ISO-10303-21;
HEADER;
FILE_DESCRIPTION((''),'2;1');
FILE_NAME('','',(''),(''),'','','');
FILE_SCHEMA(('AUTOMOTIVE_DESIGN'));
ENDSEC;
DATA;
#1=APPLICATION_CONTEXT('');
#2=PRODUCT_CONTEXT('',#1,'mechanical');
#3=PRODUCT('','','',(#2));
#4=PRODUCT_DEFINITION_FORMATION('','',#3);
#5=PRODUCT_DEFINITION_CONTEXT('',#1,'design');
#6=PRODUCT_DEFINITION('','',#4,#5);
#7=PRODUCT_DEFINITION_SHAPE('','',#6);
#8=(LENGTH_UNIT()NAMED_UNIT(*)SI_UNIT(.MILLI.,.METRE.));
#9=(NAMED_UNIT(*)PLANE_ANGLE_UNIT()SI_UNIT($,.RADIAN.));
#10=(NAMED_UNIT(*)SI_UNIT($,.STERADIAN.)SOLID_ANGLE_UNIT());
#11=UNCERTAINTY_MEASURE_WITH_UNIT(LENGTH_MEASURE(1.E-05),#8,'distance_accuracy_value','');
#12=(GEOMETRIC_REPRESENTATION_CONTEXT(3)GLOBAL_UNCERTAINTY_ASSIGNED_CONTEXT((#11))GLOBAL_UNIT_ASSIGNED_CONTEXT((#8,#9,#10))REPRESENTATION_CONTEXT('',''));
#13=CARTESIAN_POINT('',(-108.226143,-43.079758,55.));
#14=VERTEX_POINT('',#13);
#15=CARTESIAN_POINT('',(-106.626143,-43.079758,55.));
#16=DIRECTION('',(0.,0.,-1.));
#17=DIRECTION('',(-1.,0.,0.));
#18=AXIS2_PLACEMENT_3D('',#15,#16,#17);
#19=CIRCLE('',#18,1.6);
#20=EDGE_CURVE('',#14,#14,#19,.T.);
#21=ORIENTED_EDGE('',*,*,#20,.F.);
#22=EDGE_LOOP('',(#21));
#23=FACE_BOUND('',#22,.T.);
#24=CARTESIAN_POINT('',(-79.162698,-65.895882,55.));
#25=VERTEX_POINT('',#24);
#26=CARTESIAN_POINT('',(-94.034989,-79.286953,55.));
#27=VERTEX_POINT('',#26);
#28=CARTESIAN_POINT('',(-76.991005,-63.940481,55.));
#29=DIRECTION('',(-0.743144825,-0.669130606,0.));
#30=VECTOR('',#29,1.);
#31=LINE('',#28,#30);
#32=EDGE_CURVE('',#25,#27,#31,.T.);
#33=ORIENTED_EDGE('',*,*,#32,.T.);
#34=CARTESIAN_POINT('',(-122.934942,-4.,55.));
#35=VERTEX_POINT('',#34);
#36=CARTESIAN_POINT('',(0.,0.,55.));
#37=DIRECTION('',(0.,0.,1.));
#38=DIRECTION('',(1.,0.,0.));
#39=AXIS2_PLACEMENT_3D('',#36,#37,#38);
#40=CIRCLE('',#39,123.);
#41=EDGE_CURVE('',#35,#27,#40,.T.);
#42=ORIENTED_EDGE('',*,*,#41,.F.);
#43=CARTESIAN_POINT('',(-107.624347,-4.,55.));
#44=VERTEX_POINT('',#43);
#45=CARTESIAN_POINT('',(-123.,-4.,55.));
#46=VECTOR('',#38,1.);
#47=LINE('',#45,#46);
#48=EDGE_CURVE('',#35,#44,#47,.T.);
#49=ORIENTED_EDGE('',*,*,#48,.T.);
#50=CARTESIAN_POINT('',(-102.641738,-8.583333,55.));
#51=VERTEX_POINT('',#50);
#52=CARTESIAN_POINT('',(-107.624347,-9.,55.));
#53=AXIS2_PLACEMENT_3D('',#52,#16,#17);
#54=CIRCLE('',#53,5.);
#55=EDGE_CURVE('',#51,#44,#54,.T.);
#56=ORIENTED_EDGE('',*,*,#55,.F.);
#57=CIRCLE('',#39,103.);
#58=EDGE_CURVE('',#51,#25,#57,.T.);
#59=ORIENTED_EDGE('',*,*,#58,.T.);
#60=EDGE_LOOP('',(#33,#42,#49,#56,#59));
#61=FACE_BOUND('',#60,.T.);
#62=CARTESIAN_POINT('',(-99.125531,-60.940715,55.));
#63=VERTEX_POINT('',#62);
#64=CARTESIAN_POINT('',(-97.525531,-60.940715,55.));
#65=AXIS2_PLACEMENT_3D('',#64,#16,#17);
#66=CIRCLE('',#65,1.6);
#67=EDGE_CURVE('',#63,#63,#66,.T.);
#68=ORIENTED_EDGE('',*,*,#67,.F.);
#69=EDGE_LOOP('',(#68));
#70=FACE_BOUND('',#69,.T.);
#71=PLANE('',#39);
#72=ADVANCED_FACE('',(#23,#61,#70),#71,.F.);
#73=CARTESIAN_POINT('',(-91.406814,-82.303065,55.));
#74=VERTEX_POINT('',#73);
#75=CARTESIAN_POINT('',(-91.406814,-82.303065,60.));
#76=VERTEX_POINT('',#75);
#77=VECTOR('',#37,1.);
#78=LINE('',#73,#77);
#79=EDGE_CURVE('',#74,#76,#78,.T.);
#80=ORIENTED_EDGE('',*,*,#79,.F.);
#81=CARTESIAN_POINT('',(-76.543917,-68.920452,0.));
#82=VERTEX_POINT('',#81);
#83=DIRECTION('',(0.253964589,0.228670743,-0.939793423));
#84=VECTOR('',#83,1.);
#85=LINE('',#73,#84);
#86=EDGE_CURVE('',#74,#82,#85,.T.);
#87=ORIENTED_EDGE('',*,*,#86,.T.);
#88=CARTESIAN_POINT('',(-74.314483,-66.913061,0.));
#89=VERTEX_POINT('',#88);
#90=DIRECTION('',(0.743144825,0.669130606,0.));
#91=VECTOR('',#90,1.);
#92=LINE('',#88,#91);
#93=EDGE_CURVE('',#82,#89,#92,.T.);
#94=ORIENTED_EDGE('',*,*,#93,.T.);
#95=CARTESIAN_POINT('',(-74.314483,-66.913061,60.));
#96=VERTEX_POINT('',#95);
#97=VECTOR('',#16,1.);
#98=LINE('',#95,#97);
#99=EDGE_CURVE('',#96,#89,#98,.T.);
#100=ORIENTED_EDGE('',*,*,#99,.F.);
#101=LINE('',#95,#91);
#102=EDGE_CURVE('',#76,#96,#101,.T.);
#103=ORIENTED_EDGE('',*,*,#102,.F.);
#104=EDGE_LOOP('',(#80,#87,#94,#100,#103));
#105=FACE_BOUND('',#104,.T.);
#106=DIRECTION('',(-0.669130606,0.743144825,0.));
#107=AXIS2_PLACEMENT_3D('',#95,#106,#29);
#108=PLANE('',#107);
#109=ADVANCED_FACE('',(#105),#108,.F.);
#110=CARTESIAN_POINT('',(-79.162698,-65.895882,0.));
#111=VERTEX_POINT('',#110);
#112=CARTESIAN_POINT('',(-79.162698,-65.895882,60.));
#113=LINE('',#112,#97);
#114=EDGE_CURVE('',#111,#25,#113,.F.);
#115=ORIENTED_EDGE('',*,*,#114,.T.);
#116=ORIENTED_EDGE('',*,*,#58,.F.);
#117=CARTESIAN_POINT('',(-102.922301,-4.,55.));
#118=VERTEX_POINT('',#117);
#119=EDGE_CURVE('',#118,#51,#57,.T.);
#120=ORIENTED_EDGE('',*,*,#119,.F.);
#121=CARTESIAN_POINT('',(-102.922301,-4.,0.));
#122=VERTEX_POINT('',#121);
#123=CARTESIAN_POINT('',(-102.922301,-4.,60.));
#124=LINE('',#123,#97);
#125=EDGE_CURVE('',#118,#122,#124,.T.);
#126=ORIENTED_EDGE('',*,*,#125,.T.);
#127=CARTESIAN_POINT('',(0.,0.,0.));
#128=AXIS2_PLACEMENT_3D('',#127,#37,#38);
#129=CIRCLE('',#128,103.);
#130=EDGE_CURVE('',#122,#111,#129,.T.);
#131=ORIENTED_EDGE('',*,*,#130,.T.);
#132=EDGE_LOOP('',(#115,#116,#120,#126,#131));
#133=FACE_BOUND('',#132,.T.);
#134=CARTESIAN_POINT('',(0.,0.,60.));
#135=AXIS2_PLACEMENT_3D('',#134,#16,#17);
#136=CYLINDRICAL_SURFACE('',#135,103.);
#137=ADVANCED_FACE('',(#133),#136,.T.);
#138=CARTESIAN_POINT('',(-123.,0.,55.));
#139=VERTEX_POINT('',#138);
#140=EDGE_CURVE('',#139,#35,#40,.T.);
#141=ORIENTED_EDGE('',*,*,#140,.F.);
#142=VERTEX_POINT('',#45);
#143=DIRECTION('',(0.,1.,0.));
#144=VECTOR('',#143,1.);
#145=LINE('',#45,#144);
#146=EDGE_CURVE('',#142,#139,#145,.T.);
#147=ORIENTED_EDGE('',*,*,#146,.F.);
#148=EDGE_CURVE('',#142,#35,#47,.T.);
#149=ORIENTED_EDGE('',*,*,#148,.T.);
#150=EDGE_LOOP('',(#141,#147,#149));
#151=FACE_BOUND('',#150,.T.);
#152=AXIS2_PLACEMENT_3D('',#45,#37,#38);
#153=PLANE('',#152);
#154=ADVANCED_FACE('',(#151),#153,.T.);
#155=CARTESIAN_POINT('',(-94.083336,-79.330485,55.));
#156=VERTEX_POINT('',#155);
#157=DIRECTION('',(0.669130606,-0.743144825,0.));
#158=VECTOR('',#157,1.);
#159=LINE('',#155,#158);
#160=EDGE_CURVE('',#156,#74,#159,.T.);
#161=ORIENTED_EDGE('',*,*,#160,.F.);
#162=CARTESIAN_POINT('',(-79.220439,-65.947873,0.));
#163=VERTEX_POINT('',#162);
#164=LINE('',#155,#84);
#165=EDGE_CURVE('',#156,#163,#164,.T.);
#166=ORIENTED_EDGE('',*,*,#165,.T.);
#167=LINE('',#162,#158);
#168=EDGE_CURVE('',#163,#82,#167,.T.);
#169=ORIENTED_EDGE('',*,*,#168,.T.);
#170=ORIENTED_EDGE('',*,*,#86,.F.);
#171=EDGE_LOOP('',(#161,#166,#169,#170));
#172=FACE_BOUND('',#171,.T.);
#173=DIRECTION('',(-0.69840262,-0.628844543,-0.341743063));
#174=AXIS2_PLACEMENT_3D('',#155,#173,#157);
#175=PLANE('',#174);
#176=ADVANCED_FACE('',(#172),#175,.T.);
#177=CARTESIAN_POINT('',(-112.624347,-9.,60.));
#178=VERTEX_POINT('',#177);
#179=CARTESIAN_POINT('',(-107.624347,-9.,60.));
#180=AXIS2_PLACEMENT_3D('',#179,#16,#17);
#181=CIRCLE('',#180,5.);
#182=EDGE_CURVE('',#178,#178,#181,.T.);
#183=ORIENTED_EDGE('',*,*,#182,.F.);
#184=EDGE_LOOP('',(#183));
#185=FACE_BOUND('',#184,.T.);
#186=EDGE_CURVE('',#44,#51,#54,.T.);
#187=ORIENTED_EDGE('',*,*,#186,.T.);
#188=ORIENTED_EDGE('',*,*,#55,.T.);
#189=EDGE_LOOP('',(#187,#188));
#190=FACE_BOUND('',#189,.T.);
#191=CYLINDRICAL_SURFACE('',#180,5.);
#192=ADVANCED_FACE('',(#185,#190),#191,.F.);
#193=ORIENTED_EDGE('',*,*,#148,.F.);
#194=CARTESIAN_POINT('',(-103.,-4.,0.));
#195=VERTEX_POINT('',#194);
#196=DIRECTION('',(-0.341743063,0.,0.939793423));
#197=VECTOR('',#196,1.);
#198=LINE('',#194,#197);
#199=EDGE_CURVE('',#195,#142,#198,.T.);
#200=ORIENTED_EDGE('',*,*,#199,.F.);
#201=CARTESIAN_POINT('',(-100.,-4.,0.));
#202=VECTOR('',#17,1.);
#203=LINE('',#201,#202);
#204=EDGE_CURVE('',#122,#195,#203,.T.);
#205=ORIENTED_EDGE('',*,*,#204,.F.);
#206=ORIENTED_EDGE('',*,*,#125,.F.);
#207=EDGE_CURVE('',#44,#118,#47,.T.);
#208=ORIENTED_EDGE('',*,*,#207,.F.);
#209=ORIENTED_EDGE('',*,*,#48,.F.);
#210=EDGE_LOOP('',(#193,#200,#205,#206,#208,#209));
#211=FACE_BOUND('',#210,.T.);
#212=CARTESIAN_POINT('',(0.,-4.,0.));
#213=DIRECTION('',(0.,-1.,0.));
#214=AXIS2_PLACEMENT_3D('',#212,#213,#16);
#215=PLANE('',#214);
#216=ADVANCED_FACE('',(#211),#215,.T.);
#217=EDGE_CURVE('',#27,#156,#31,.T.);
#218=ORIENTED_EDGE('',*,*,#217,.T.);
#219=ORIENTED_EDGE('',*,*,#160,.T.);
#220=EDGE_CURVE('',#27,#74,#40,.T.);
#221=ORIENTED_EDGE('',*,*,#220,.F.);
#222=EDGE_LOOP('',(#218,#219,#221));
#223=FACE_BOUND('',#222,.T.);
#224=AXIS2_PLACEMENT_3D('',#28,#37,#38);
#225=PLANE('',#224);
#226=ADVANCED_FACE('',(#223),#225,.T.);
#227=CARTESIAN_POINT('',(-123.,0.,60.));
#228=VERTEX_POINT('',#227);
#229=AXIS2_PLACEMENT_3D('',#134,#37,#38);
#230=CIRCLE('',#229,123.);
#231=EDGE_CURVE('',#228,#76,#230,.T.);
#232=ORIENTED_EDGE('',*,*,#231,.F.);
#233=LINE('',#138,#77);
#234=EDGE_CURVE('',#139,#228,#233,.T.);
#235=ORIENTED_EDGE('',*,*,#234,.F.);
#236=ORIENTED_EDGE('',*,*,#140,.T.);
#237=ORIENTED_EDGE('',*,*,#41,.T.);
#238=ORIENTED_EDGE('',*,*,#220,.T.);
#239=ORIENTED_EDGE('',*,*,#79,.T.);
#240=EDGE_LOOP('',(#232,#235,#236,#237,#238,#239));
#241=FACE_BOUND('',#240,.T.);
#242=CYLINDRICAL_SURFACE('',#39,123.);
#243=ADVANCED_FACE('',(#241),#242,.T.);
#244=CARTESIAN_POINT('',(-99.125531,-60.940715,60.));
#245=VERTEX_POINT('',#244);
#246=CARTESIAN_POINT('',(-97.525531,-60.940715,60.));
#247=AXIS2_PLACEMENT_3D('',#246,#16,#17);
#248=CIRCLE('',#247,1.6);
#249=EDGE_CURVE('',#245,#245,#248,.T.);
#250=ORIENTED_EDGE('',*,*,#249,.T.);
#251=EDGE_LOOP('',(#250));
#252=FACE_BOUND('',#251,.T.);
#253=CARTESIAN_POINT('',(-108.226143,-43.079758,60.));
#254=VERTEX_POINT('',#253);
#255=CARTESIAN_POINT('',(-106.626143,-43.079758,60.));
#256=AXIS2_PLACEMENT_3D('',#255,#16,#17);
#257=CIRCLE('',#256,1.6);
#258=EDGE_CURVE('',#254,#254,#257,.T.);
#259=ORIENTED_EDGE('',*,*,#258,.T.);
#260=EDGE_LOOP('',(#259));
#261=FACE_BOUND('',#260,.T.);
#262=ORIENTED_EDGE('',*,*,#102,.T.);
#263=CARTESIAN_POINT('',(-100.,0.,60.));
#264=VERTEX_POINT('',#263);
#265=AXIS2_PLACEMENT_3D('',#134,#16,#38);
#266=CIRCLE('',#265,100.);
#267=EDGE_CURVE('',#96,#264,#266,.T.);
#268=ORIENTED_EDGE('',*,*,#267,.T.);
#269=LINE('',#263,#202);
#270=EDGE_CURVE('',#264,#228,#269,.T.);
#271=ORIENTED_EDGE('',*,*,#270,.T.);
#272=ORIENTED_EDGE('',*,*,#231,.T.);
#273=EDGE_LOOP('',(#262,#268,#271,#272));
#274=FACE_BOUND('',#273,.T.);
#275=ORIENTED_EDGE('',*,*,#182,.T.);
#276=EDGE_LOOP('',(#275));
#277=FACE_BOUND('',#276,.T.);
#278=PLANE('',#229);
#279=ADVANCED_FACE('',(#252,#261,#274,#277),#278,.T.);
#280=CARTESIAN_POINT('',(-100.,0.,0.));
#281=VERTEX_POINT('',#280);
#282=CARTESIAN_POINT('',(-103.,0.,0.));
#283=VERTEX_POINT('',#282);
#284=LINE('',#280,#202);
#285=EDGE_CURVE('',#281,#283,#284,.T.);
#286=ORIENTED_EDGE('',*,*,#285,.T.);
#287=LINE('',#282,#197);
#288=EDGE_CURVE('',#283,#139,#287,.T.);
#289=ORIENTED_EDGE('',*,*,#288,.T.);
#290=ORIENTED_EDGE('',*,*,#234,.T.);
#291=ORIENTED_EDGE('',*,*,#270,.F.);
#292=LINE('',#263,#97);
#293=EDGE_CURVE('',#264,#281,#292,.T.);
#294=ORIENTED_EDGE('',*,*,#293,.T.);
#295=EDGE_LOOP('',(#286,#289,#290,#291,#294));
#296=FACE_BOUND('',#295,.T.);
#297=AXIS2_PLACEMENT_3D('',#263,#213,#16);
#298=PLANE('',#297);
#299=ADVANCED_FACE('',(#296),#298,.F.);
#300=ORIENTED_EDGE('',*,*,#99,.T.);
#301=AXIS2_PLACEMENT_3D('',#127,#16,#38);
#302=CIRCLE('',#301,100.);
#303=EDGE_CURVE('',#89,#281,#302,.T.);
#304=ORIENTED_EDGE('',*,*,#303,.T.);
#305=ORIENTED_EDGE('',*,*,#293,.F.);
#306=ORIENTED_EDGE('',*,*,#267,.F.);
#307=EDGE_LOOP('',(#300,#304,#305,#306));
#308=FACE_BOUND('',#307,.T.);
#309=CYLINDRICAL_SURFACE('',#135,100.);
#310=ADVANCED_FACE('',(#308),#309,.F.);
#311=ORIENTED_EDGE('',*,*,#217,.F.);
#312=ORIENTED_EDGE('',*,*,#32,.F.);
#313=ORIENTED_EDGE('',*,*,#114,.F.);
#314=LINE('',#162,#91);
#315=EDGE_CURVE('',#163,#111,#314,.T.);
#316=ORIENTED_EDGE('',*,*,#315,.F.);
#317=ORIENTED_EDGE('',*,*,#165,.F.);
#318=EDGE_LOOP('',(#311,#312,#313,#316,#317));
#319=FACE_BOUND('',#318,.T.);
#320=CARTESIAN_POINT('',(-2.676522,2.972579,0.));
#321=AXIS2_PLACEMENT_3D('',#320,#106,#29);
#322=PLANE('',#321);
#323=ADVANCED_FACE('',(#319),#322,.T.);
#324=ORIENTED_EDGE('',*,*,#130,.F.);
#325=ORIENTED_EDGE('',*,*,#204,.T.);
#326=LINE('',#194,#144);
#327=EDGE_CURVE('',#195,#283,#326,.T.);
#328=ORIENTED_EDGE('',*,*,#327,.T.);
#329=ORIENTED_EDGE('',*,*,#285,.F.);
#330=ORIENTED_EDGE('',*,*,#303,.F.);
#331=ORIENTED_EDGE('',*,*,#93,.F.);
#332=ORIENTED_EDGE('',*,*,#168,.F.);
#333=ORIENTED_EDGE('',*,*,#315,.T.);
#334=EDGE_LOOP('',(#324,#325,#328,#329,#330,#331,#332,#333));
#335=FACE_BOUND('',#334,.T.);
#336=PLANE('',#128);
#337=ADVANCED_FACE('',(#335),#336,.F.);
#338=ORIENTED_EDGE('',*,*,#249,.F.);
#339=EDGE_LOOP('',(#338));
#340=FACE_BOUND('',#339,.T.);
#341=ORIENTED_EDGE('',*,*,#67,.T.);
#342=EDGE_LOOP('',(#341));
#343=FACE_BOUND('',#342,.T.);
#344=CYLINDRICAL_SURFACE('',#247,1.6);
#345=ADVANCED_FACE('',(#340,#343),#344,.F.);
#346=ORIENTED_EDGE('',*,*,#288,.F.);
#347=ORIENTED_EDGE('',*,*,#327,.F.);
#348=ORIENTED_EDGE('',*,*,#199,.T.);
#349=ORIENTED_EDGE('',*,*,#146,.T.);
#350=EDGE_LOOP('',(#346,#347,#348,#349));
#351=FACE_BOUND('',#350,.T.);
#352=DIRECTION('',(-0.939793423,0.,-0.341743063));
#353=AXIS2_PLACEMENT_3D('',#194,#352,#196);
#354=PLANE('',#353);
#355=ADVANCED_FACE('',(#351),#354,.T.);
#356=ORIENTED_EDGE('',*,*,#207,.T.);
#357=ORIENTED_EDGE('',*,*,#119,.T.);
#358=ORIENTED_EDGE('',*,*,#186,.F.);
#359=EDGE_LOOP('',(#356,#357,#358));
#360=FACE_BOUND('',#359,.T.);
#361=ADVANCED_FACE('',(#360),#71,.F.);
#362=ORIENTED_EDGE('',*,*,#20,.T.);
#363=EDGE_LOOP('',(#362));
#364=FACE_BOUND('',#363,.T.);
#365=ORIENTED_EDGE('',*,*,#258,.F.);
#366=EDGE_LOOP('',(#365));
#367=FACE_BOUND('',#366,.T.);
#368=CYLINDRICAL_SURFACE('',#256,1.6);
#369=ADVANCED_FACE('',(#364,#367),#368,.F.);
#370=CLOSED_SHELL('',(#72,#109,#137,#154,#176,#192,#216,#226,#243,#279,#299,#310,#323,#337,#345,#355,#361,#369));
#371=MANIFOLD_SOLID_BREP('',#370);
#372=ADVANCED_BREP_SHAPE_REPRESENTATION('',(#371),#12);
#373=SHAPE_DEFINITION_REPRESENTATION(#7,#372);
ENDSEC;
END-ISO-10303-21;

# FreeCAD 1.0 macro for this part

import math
import FreeCAD as App
import Part
import Sketcher
Q = App.Units.Quantity

doc = App.newDocument("Part")
body = doc.addObject("PartDesign::Body", "Body")

sketch1 = body.newObject("Sketcher::SketchObject", "Sketch")
sketch1.AttachmentSupport = (doc.getObject("XY_Plane"), [""])
sketch1.MapMode = "FlatFace"
sketch1.addGeometry([
    Part.LineSegment(App.Vector(-100, 0, 0), App.Vector(-103, 0, 0)),
    Part.ArcOfCircle(Part.Circle(App.Vector(0, 0, 0), App.Vector(0, 0, 1), 103), math.radians(-180), math.radians(-138)),
    Part.LineSegment(App.Vector(-76.5, -68.9, 0), App.Vector(-74.3, -66.9, 0)),
    Part.ArcOfCircle(Part.Circle(App.Vector(0, 0, 0), App.Vector(0, 0, 1), 100), math.radians(180), math.radians(222)),
], False)
sketch1.addConstraint([
    Sketcher.Constraint("Coincident", 0, 2, 1, 1),
    Sketcher.Constraint("Coincident", 1, 2, 2, 1),
    Sketcher.Constraint("Coincident", 2, 2, 3, 2),
    Sketcher.Constraint("Coincident", 3, 1, 0, 1),
    Sketcher.Constraint("Horizontal", 0),
    Sketcher.Constraint("Coincident", 1, 3, -1, 1),
    Sketcher.Constraint("Coincident", 3, 3, -1, 1),
    Sketcher.Constraint("PointOnObject", 0, 2, -1),
    Sketcher.Constraint("Radius", 1, Q("103 mm")),
    Sketcher.Constraint("Radius", 3, Q("100 mm")),
    Sketcher.Constraint("Angle", 2, Q("42 deg")),
    Sketcher.Constraint("DistanceY", 2, 2, -1, 1, Q("66.913061 mm")),
])
pad1 = body.newObject("PartDesign::Pad", "Pad")
pad1.Profile = sketch1
pad1.Length = 60

sketch2 = body.newObject("Sketcher::SketchObject", "Sketch001")
sketch2.AttachmentSupport = (doc.getObject("XY_Plane"), [""])
sketch2.MapMode = "FlatFace"
sketch2.AttachmentOffset = App.Placement(App.Vector(0, 0, 60), App.Rotation())
sketch2.addGeometry([
    Part.LineSegment(App.Vector(-91, -82, 0), App.Vector(-75, -68, 0)),
    Part.ArcOfCircle(Part.Circle(App.Vector(0, 0, 0), App.Vector(0, 0, 1), 101), math.radians(-180), math.radians(-138)),
    Part.LineSegment(App.Vector(-101, 0, 0), App.Vector(-123, 0, 0)),
    Part.ArcOfCircle(Part.Circle(App.Vector(0, 0, 0), App.Vector(0, 0, 1), 123), math.radians(-180), math.radians(-138)),
], False)
sketch2.addConstraint([
    Sketcher.Constraint("Coincident", 0, 2, 1, 2),
    Sketcher.Constraint("Coincident", 1, 1, 2, 1),
    Sketcher.Constraint("Coincident", 2, 2, 3, 1),
    Sketcher.Constraint("Coincident", 3, 2, 0, 1),
    Sketcher.Constraint("Horizontal", 2),
    Sketcher.Constraint("Coincident", 1, 3, -1, 1),
    Sketcher.Constraint("Coincident", 3, 3, -1, 1),
    Sketcher.Constraint("PointOnObject", 1, 1, -1),
    Sketcher.Constraint("Radius", 3, Q("123 mm")),
    Sketcher.Constraint("Angle", 0, Q("42 deg")),
    Sketcher.Constraint("Radius", 1, Q("101.373407 mm")),
    Sketcher.Constraint("DistanceY", 0, 2, -1, 1, Q("67.832049 mm")),
])
pad2 = body.newObject("PartDesign::Pad", "Pad001")
pad2.Profile = sketch2
pad2.Length = 5
pad2.Reversed = True

sketch3 = body.newObject("Sketcher::SketchObject", "Sketch002")
sketch3.AttachmentSupport = (doc.getObject("XY_Plane"), [""])
sketch3.MapMode = "FlatFace"
sketch3.AttachmentOffset = App.Placement(App.Vector(0, 0, 55), App.Rotation())
sketch3.addGeometry([
    Part.Circle(App.Vector(-97.5, -60.9, 0), App.Vector(0, 0, 1), 1.6),
    Part.Circle(App.Vector(-106.6, -43.1, 0), App.Vector(0, 0, 1), 1.6),
], False)
sketch3.addConstraint([
    Sketcher.Constraint("Equal", 0, 1),
    Sketcher.Constraint("Diameter", 0, Q("3.2 mm")),
    Sketcher.Constraint("DistanceX", 0, 3, -1, 1, Q("97.525531 mm")),
    Sketcher.Constraint("DistanceY", 1, 3, -1, 1, Q("43.079758 mm")),
    Sketcher.Constraint("DistanceY", 0, 3, -1, 1, Q("60.940715 mm")),
    Sketcher.Constraint("DistanceX", 1, 3, -1, 1, Q("106.626143 mm")),
])
pocket1 = body.newObject("PartDesign::Pocket", "Pocket")
pocket1.Profile = sketch3
pocket1.Type = "ThroughAll"
pocket1.Reversed = True

sketch4 = body.newObject("Sketcher::SketchObject", "Sketch003")
sketch4.AttachmentSupport = (doc.getObject("XZ_Plane"), [""])
sketch4.MapMode = "FlatFace"
sketch4.addGeometry([
    Part.LineSegment(App.Vector(-103, 0, 0), App.Vector(-123, 55, 0)),
    Part.LineSegment(App.Vector(-123, 55, 0), App.Vector(-100, 55, 0)),
    Part.LineSegment(App.Vector(-100, 55, 0), App.Vector(-100, 0, 0)),
    Part.LineSegment(App.Vector(-100, 0, 0), App.Vector(-103, 0, 0)),
], False)
sketch4.addConstraint([
    Sketcher.Constraint("Coincident", 0, 2, 1, 1),
    Sketcher.Constraint("Coincident", 1, 2, 2, 1),
    Sketcher.Constraint("Coincident", 2, 2, 3, 1),
    Sketcher.Constraint("Coincident", 3, 2, 0, 1),
    Sketcher.Constraint("Horizontal", 1),
    Sketcher.Constraint("Vertical", 2),
    Sketcher.Constraint("Horizontal", 3),
    Sketcher.Constraint("PointOnObject", 2, 2, -1),
    Sketcher.Constraint("DistanceX", 1, 1, 1, 2, Q("23 mm")),
    Sketcher.Constraint("DistanceX", 3, 2, 3, 1, Q("3 mm")),
    Sketcher.Constraint("DistanceY", 2, 2, 2, 1, Q("55 mm")),
    Sketcher.Constraint("DistanceX", 0, 2, -1, 1, Q("123 mm")),
])
pad3 = body.newObject("PartDesign::Pad", "Pad002")
pad3.Profile = sketch4
pad3.Length = 4

sketch5 = body.newObject("Sketcher::SketchObject", "Sketch004")
sketch5.Placement = App.Placement(App.Vector(0, 0, 0), App.Rotation(App.Vector(0, 0, -1), App.Vector(0.743144825, 0.669130606, 0), App.Vector(0.669130606, -0.743144825, 0), "ZXY"))
sketch5.addGeometry([
    Part.LineSegment(App.Vector(-55, -123, 0), App.Vector(0, -103, 0)),
    Part.LineSegment(App.Vector(0, -103, 0), App.Vector(0, -100, 0)),
    Part.LineSegment(App.Vector(0, -100, 0), App.Vector(-55, -100, 0)),
    Part.LineSegment(App.Vector(-55, -100, 0), App.Vector(-55, -123, 0)),
], False)
sketch5.addConstraint([
    Sketcher.Constraint("Coincident", 0, 2, 1, 1),
    Sketcher.Constraint("Coincident", 1, 2, 2, 1),
    Sketcher.Constraint("Coincident", 2, 2, 3, 1),
    Sketcher.Constraint("Coincident", 3, 2, 0, 1),
    Sketcher.Constraint("Vertical", 1),
    Sketcher.Constraint("Horizontal", 2),
    Sketcher.Constraint("Vertical", 3),
    Sketcher.Constraint("PointOnObject", 0, 2, -2),
    Sketcher.Constraint("DistanceX", 2, 2, 2, 1, Q("55 mm")),
    Sketcher.Constraint("DistanceY", 1, 1, 1, 2, Q("3 mm")),
    Sketcher.Constraint("DistanceY", 3, 2, 3, 1, Q("23 mm")),
    Sketcher.Constraint("DistanceY", 0, 2, -1, 1, Q("103 mm")),
])
pad4 = body.newObject("PartDesign::Pad", "Pad003")
pad4.Profile = sketch5
pad4.Length = 4
pad4.Reversed = True

sketch6 = body.newObject("Sketcher::SketchObject", "Sketch005")
sketch6.AttachmentSupport = (doc.getObject("XY_Plane"), [""])
sketch6.MapMode = "FlatFace"
sketch6.AttachmentOffset = App.Placement(App.Vector(0, 0, 55), App.Rotation())
sketch6.addGeometry(Part.Circle(App.Vector(-108, -9, 0), App.Vector(0, 0, 1), 5), False)
sketch6.addConstraint([
    Sketcher.Constraint("Diameter", 0, Q("10 mm")),
    Sketcher.Constraint("DistanceY", 0, 3, -1, 1, Q("9 mm")),
    Sketcher.Constraint("DistanceX", 0, 3, -1, 1, Q("107.624347 mm")),
])
pocket2 = body.newObject("PartDesign::Pocket", "Pocket001")
pocket2.Profile = sketch6
pocket2.Type = "ThroughAll"
pocket2.Reversed = True

doc.recompute()
